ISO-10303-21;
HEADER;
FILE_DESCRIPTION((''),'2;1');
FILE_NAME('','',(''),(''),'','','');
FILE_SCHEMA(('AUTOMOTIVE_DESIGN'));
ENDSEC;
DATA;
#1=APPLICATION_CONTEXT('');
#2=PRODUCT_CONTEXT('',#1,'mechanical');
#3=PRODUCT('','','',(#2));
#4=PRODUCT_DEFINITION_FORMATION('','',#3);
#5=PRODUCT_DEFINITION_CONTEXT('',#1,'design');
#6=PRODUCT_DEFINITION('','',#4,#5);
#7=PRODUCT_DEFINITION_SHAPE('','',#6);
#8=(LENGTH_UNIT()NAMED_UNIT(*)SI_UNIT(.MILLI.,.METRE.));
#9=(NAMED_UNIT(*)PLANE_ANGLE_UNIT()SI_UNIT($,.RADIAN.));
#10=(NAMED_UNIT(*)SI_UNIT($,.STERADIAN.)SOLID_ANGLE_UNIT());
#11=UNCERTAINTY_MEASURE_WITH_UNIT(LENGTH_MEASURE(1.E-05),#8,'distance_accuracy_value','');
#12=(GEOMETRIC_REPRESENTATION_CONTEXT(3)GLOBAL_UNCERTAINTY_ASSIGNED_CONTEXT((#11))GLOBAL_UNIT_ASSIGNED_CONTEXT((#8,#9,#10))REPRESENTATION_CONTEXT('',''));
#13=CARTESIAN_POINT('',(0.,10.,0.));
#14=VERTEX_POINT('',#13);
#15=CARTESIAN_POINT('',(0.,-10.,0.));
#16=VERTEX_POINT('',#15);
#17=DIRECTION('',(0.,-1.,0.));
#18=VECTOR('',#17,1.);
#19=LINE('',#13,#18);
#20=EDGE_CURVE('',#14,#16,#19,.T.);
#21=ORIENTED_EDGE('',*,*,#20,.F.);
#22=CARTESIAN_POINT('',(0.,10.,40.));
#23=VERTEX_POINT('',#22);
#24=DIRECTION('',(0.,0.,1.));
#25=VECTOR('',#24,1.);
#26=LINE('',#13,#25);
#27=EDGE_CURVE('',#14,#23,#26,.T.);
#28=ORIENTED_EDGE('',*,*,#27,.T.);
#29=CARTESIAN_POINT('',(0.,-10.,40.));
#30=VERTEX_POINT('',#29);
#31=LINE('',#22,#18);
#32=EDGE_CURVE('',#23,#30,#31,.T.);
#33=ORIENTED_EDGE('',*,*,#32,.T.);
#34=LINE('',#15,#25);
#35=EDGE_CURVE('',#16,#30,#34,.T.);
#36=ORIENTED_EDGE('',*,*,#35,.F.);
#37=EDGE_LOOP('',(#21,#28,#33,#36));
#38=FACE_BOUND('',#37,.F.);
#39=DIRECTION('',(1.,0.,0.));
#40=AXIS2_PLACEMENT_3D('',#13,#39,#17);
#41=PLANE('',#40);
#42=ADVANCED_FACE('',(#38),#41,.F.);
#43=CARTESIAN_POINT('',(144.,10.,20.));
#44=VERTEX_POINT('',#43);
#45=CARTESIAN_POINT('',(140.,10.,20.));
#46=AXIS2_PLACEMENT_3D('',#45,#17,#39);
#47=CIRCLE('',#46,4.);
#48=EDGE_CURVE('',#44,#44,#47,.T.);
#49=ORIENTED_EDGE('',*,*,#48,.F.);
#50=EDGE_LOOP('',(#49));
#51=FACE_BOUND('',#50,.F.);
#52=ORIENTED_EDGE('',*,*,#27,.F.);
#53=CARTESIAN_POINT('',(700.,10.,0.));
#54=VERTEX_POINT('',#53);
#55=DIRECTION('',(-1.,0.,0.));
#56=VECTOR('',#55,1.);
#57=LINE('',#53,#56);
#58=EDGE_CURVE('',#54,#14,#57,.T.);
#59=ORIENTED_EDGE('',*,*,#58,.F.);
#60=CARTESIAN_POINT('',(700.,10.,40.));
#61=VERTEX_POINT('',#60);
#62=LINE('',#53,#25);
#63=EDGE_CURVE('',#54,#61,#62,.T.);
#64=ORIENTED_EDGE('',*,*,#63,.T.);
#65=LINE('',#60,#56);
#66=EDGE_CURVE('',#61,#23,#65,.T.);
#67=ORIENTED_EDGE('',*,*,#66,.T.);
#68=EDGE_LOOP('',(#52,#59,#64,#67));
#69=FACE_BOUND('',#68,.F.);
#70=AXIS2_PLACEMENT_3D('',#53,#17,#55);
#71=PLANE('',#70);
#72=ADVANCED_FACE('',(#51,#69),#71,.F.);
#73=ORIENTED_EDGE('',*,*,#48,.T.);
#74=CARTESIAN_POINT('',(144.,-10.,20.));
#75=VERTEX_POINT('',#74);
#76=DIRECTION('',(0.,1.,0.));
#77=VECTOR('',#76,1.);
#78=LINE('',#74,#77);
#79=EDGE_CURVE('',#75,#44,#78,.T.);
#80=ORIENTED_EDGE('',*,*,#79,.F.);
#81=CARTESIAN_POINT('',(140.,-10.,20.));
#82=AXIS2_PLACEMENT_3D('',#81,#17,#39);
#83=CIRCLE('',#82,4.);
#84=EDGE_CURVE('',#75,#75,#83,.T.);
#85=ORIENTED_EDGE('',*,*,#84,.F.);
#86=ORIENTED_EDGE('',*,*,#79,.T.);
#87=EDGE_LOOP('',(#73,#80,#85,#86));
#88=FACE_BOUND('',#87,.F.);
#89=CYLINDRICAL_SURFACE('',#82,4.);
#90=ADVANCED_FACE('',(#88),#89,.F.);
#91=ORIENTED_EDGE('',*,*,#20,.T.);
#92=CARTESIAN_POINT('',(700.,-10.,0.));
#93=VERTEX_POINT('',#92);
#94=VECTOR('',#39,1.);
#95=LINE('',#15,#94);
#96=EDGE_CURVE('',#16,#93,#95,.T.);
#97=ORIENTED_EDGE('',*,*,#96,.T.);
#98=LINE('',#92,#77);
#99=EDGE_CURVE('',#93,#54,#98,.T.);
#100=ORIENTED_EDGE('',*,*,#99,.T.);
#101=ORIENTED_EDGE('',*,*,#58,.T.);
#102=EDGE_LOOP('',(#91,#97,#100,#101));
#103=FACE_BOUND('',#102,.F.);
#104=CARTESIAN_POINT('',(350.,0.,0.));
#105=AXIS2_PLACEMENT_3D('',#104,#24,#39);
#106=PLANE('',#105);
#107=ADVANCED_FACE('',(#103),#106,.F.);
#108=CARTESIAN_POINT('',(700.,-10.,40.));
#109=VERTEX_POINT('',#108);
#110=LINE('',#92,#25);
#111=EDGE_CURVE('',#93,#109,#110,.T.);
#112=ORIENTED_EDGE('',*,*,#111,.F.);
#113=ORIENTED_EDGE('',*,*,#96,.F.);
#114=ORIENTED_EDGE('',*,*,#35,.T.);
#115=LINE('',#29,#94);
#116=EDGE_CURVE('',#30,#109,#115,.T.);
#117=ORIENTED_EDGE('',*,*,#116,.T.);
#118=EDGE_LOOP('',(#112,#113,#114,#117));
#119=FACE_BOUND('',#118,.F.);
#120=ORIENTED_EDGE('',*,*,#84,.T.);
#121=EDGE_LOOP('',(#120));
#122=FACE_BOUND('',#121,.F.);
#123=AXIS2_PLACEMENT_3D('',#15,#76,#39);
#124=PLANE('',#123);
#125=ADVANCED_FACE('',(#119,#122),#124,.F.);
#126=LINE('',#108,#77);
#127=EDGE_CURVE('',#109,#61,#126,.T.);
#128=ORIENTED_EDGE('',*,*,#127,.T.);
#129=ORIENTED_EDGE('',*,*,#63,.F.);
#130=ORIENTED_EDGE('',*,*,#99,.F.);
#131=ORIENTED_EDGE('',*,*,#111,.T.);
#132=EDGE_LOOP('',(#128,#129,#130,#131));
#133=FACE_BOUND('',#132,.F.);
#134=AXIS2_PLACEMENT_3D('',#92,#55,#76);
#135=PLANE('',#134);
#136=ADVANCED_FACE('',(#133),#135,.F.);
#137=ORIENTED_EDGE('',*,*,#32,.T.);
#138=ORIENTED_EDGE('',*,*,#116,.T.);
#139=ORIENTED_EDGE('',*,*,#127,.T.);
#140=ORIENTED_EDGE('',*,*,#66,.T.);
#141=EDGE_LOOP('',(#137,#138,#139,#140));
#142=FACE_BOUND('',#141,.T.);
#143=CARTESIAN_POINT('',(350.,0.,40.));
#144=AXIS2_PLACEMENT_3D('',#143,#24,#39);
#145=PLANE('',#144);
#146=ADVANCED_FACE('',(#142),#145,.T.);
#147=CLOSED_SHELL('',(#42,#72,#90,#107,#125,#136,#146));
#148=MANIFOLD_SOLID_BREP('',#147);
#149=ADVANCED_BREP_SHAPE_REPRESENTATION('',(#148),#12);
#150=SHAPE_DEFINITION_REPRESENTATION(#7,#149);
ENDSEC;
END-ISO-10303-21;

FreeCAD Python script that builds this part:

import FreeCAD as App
import Part
import Sketcher

doc = App.newDocument("Part")
params = doc.addObject("Spreadsheet::Sheet", "Params")
for row, (alias, value) in enumerate([
    ("sketch1_width", "700 mm"),
    ("sketch1_height", "20 mm"),
    ("pad1_length", "40 mm"),
    ("sketch2_diameter", "8 mm"),
    ("pocket1_length", "25 mm"),
], start=1):
    params.set(f"A{row}", alias)
    params.set(f"B{row}", "=" + value)
    params.setAlias(f"B{row}", alias)

body = doc.addObject("PartDesign::Body", "Body")

# Sketch on XY plane
sketch1 = body.newObject("Sketcher::SketchObject", "Sketch")
sketch1.AttachmentSupport = (doc.getObject("XY_Plane"), [""])
sketch1.MapMode = "FlatFace"
sketch1.addGeometry(Part.LineSegment(App.Vector(700, -10, 0), App.Vector(700, 10, 0)), False)
sketch1.addGeometry(Part.LineSegment(App.Vector(700, 10, 0), App.Vector(0, 10, 0)), False)
sketch1.addGeometry(Part.LineSegment(App.Vector(0, 10, 0), App.Vector(0, -10, 0)), False)
sketch1.addGeometry(Part.LineSegment(App.Vector(0, -10, 0), App.Vector(700, -10, 0)), False)
sketch1.addConstraint(Sketcher.Constraint("Coincident", 0, 2, 1, 1))
sketch1.addConstraint(Sketcher.Constraint("Coincident", 1, 2, 2, 1))
sketch1.addConstraint(Sketcher.Constraint("Coincident", 2, 2, 3, 1))
sketch1.addConstraint(Sketcher.Constraint("Coincident", 3, 2, 0, 1))
sketch1.addConstraint(Sketcher.Constraint("Vertical", 0))
sketch1.addConstraint(Sketcher.Constraint("Horizontal", 1))
sketch1.addConstraint(Sketcher.Constraint("Vertical", 2))
sketch1.addConstraint(Sketcher.Constraint("Horizontal", 3))
sketch1.addConstraint(Sketcher.Constraint("Symmetric", 1, 2, 2, 2, -1, 1))
sketch1.addConstraint(Sketcher.Constraint("DistanceX", 1, 2, 1, 1, 700.0))
sketch1.addConstraint(Sketcher.Constraint("DistanceY", 0, 1, 0, 2, 20.0))
sketch1.setExpression("Constraints[9]", "Params.sketch1_width")
sketch1.setExpression("Constraints[10]", "Params.sketch1_height")
pad1 = body.newObject("PartDesign::Pad", "Pad")
pad1.Profile = sketch1
pad1.setExpression("Length", "Params.pad1_length")

# Sketch on XZ plane
sketch2 = body.newObject("Sketcher::SketchObject", "Sketch001")
sketch2.AttachmentSupport = (doc.getObject("XZ_Plane"), [""])
sketch2.MapMode = "FlatFace"
sketch2.AttachmentOffset = App.Placement(App.Vector(0, 0, 10), App.Rotation())
sketch2.addGeometry(Part.Circle(App.Vector(140, 20, 0), App.Vector(0, 0, 1), 4), False)
sketch2.addConstraint(Sketcher.Constraint("Diameter", 0, 8.0))
sketch2.addConstraint(Sketcher.Constraint("DistanceX", -1, 1, 0, 3, 140.0))
sketch2.addConstraint(Sketcher.Constraint("DistanceY", -1, 1, 0, 3, 20.0))
sketch2.setExpression("Constraints[0]", "Params.sketch2_diameter")
pocket1 = body.newObject("PartDesign::Pocket", "Pocket")
pocket1.Profile = sketch2
pocket1.setExpression("Length", "Params.pocket1_length")

doc.recompute()
